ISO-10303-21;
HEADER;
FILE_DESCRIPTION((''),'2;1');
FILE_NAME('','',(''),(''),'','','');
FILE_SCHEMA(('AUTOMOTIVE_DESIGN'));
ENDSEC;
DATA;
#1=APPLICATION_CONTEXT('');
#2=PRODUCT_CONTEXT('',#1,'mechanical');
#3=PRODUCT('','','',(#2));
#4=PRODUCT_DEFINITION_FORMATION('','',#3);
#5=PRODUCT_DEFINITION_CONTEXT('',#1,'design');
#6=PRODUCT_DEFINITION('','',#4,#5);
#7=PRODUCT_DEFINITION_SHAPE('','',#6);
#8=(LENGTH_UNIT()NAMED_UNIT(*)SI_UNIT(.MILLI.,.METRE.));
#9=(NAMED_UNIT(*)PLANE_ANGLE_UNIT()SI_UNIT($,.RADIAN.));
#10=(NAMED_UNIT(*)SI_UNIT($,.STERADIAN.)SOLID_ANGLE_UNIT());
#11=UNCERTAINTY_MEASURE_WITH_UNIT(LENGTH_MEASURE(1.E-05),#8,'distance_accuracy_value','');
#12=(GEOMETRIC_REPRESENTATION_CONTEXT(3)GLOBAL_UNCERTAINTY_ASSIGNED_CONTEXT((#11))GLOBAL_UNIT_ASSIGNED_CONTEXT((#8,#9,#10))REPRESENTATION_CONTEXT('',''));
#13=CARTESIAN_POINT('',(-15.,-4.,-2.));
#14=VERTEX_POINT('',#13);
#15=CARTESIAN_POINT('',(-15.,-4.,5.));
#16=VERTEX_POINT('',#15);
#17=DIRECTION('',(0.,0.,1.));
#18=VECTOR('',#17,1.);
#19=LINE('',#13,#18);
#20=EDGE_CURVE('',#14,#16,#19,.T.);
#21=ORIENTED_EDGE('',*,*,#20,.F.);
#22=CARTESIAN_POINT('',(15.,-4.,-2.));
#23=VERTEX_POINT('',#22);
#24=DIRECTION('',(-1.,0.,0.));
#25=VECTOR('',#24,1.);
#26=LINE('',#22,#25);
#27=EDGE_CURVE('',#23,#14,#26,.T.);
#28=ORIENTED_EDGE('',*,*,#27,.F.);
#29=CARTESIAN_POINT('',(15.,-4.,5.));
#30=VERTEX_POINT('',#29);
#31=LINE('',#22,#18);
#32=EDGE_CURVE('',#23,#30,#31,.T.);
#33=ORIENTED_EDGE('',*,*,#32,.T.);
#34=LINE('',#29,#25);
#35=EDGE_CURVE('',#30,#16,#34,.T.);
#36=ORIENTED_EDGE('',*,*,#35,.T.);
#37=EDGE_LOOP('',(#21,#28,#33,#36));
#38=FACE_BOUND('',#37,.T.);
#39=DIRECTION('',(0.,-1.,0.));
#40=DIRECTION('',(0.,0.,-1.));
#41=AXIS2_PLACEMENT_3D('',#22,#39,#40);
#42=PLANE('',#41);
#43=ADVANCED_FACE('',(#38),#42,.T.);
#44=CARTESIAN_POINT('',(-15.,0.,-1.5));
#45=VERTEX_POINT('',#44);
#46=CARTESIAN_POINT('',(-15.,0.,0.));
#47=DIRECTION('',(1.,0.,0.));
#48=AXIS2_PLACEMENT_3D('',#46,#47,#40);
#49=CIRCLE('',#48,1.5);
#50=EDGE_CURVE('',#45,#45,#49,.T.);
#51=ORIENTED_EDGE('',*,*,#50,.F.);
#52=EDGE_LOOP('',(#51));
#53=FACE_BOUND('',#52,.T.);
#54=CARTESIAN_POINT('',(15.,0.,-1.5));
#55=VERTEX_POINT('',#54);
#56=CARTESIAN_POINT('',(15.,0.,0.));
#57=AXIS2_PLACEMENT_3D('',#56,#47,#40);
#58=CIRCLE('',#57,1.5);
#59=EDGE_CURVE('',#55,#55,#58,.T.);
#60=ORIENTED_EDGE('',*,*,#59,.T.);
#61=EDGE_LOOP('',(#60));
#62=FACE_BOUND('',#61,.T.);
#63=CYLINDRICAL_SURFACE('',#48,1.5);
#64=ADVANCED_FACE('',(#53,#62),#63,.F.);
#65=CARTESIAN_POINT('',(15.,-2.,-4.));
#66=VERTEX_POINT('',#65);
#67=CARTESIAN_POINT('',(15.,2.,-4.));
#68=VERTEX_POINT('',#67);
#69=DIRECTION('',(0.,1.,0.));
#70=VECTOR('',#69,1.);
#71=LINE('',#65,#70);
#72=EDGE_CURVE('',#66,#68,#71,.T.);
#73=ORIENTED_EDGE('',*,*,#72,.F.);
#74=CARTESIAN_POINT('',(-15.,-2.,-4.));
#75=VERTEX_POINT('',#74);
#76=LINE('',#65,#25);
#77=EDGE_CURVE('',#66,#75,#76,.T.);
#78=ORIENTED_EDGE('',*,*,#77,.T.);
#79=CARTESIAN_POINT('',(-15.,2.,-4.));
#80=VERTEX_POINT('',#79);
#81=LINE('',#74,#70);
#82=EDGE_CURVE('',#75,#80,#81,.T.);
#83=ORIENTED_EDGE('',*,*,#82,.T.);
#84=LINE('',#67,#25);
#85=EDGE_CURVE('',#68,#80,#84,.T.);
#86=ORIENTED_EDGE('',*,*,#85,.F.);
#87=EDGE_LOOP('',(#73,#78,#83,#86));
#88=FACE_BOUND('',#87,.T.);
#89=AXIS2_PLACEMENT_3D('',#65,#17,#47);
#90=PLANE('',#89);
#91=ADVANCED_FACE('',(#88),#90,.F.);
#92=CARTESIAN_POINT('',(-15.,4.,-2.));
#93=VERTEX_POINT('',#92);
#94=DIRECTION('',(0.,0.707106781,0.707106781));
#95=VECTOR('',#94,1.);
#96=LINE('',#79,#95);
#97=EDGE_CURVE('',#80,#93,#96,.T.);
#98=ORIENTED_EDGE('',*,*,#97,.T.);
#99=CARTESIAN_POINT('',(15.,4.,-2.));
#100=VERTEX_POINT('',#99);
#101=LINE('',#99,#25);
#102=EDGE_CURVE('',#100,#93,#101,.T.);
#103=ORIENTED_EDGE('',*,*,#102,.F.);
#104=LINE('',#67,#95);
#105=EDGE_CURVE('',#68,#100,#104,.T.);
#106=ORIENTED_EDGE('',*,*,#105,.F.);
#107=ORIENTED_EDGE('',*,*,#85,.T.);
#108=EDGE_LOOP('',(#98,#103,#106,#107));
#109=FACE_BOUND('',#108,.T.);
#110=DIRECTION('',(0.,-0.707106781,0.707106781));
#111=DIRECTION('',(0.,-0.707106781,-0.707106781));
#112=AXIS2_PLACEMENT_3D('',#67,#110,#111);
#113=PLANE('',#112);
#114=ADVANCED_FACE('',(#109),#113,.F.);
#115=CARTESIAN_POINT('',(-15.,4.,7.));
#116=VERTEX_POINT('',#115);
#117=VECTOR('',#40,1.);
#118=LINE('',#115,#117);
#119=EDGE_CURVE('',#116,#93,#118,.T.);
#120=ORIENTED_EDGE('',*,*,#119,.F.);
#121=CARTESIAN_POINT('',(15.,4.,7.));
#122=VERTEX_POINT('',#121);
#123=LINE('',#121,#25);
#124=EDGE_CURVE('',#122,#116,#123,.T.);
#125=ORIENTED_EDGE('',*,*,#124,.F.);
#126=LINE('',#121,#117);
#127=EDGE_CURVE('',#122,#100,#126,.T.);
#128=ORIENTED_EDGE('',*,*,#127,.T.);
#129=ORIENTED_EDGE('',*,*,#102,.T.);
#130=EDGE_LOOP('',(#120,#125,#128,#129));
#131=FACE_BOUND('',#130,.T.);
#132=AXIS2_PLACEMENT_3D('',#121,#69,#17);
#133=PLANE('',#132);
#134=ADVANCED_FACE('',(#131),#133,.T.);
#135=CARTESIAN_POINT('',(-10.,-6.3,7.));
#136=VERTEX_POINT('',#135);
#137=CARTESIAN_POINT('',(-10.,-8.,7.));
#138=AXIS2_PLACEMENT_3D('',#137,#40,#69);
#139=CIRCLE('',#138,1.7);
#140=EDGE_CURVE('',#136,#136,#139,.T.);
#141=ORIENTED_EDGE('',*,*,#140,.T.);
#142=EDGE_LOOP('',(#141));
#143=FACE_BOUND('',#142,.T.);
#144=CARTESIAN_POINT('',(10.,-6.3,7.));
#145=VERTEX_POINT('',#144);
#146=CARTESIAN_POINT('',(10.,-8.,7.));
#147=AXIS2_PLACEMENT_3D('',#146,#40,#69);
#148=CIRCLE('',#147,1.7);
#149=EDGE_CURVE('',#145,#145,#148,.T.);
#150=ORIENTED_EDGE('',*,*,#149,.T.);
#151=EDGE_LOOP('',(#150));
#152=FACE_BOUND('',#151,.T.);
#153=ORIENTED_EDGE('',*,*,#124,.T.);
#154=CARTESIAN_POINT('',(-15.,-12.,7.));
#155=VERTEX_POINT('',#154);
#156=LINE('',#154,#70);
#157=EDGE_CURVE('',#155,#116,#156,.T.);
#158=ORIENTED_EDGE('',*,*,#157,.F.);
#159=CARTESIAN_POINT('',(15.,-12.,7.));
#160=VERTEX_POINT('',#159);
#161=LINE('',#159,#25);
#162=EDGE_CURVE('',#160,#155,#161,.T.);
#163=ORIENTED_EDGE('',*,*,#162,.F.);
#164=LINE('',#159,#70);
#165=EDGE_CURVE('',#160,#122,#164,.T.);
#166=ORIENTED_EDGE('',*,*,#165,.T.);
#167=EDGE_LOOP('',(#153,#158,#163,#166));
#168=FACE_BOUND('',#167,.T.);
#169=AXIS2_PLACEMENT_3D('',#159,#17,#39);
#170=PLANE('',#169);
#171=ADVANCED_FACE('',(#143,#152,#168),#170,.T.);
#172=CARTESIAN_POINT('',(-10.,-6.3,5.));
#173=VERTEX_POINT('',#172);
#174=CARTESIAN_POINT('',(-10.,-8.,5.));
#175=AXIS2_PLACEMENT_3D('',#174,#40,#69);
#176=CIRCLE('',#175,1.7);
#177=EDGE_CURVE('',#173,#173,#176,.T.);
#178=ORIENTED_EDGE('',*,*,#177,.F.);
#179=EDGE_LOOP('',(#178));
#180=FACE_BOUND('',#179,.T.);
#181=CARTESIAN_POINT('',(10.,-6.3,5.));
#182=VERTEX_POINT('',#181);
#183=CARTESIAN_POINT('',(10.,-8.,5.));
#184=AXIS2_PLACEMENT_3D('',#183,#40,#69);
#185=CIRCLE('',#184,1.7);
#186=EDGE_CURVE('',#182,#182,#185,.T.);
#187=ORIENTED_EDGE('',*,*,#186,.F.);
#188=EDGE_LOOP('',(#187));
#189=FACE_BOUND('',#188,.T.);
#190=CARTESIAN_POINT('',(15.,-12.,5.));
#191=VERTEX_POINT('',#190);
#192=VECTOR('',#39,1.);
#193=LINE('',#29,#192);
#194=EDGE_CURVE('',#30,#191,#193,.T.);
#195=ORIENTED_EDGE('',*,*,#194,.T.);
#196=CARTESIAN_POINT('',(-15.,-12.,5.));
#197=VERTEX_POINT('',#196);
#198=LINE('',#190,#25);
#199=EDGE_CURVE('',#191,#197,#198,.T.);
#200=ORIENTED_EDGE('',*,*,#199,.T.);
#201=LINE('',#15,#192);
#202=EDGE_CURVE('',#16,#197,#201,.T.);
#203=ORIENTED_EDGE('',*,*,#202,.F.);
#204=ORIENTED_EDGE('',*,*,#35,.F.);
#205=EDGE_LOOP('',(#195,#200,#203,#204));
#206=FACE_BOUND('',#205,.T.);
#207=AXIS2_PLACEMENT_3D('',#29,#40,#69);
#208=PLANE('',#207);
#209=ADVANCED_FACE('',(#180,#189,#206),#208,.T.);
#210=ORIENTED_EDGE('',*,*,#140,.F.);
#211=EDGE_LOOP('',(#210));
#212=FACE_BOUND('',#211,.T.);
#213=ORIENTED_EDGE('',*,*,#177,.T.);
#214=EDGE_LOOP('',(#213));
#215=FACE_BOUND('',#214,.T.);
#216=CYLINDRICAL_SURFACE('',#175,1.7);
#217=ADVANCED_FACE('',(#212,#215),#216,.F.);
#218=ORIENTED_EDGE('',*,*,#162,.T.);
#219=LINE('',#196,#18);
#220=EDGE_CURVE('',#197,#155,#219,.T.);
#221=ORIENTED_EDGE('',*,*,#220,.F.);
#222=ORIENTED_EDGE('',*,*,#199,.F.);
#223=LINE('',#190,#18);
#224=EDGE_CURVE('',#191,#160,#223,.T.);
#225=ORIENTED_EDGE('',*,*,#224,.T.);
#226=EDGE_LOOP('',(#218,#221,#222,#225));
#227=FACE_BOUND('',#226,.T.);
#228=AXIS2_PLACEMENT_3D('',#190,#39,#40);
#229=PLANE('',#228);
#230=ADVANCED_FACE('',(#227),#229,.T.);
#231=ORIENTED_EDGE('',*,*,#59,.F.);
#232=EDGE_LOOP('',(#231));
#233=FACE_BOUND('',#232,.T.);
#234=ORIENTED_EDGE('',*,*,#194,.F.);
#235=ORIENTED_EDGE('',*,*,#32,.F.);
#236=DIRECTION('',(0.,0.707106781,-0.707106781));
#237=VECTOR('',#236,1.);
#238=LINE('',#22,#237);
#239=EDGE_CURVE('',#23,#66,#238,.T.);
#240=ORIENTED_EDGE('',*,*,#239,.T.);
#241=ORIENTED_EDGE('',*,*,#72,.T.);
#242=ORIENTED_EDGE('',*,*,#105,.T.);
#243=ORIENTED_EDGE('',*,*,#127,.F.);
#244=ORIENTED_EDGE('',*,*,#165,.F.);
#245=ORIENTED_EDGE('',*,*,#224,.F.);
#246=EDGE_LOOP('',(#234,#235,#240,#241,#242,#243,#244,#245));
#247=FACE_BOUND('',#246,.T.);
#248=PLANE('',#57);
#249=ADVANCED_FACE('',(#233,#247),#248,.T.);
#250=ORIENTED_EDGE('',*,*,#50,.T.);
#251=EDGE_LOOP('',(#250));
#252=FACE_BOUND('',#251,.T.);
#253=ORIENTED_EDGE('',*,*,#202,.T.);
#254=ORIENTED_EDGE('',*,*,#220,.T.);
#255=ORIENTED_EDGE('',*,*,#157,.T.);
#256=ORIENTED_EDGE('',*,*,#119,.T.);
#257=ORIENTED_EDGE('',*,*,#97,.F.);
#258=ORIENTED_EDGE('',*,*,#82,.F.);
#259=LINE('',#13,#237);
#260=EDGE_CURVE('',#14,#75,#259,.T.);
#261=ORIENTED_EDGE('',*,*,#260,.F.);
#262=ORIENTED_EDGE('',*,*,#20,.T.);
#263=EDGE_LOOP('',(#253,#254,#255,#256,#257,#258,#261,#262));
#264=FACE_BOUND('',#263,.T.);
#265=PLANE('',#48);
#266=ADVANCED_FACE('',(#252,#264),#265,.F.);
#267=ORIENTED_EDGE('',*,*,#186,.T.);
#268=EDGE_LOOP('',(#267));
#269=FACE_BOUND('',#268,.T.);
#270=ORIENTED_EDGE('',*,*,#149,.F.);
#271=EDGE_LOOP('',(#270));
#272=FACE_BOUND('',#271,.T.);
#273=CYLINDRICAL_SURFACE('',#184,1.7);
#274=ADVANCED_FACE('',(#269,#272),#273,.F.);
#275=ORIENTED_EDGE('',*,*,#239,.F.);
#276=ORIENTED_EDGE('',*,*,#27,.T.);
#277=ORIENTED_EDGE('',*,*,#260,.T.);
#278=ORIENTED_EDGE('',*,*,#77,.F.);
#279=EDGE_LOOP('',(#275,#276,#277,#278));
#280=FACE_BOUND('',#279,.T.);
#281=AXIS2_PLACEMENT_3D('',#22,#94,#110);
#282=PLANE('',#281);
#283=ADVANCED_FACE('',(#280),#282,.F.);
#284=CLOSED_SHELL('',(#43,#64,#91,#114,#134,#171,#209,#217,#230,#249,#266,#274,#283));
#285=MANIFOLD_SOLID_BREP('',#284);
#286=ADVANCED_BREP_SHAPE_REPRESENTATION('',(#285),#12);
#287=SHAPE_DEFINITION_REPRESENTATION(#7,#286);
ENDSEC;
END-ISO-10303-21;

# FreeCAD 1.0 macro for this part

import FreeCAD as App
import Part
import Sketcher
from FreeCAD import Vector

doc = App.newDocument("Part")
params = doc.addObject("Spreadsheet::Sheet", "Params")
for row, (alias, value) in enumerate([
    ("sketch1_width", "16 mm"),
    ("sketch1_width2", "8 mm"),
    ("sketch1_width3", "4 mm"),
    ("sketch1_height", "9 mm"),
    ("sketch1_height2", "2 mm"),
    ("pad1_length", "30 mm"),
    ("sketch2_diameter", "3.4 mm"),
    ("hole_diameter", "3.4 mm"),
    ("sketch3_diameter", "3 mm"),
], start=1):
    params.set(f"A{row}", alias)
    params.set(f"B{row}", "=" + value)
    params.setAlias(f"B{row}", alias)

body = doc.addObject("PartDesign::Body", "Body")

# Sketch on YZ plane
sketch1 = body.newObject("Sketcher::SketchObject", "Sketch")
sketch1.AttachmentSupport = (doc.getObject("YZ_Plane"), [""])
sketch1.MapMode = "FlatFace"
sketch1.addGeometry(Part.LineSegment(Vector(4, -2, 0), Vector(4, 7, 0)), False)
sketch1.addGeometry(Part.LineSegment(Vector(4, 7, 0), Vector(-12, 7, 0)), False)
sketch1.addGeometry(Part.LineSegment(Vector(-12, 7, 0), Vector(-12, 5, 0)), False)
sketch1.addGeometry(Part.LineSegment(Vector(-12, 5, 0), Vector(-4, 5, 0)), False)
sketch1.addGeometry(Part.LineSegment(Vector(-4, 5, 0), Vector(-4, -2, 0)), False)
sketch1.addGeometry(Part.LineSegment(Vector(-4, -2, 0), Vector(-2, -4, 0)), False)
sketch1.addGeometry(Part.LineSegment(Vector(-2, -4, 0), Vector(2, -4, 0)), False)
sketch1.addGeometry(Part.LineSegment(Vector(2, -4, 0), Vector(4, -2, 0)), False)
sketch1.addConstraint(Sketcher.Constraint("Coincident", 0, 2, 1, 1))
sketch1.addConstraint(Sketcher.Constraint("Coincident", 1, 2, 2, 1))
sketch1.addConstraint(Sketcher.Constraint("Coincident", 2, 2, 3, 1))
sketch1.addConstraint(Sketcher.Constraint("Coincident", 3, 2, 4, 1))
sketch1.addConstraint(Sketcher.Constraint("Coincident", 4, 2, 5, 1))
sketch1.addConstraint(Sketcher.Constraint("Coincident", 5, 2, 6, 1))
sketch1.addConstraint(Sketcher.Constraint("Coincident", 6, 2, 7, 1))
sketch1.addConstraint(Sketcher.Constraint("Coincident", 7, 2, 0, 1))
sketch1.addConstraint(Sketcher.Constraint("Vertical", 0))
sketch1.addConstraint(Sketcher.Constraint("Horizontal", 1))
sketch1.addConstraint(Sketcher.Constraint("Vertical", 2))
sketch1.addConstraint(Sketcher.Constraint("Horizontal", 3))
sketch1.addConstraint(Sketcher.Constraint("Vertical", 4))
sketch1.addConstraint(Sketcher.Constraint("Horizontal", 6))
sketch1.addConstraint(Sketcher.Constraint("Symmetric", 4, 2, 7, 2, -2))
sketch1.addConstraint(Sketcher.Constraint("Perpendicular", 5, 7))
sketch1.addConstraint(Sketcher.Constraint("Equal", 5, 7))
sketch1.addConstraint(Sketcher.Constraint("DistanceX", 1, 2, 1, 1, 16.0))
sketch1.addConstraint(Sketcher.Constraint("DistanceX", 3, 1, 3, 2, 8.0))
sketch1.addConstraint(Sketcher.Constraint("DistanceX", 6, 1, 6, 2, 4.0))
sketch1.addConstraint(Sketcher.Constraint("DistanceY", 0, 1, 0, 2, 9.0))
sketch1.addConstraint(Sketcher.Constraint("DistanceY", 2, 2, 2, 1, 2.0))
sketch1.addConstraint(Sketcher.Constraint("DistanceY", -1, 1, 0, 2, 7.0))
sketch1.setExpression("Constraints[17]", "Params.sketch1_width")
sketch1.setExpression("Constraints[18]", "Params.sketch1_width2")
sketch1.setExpression("Constraints[19]", "Params.sketch1_width3")
sketch1.setExpression("Constraints[20]", "Params.sketch1_height")
sketch1.setExpression("Constraints[21]", "Params.sketch1_height2")
pad1 = body.newObject("PartDesign::Pad", "Pad")
pad1.Profile = sketch1
pad1.setExpression("Length", "Params.pad1_length")
pad1.Midplane = True

# Sketch on XY plane
sketch2 = body.newObject("Sketcher::SketchObject", "Sketch001")
sketch2.AttachmentSupport = (doc.getObject("XY_Plane"), [""])
sketch2.MapMode = "FlatFace"
sketch2.AttachmentOffset = App.Placement(Vector(0, 0, 5), App.Rotation())
sketch2.addGeometry(Part.Circle(Vector(10, -8, 0), Vector(0, 0, 1), 1.7), False)
sketch2.addGeometry(Part.Circle(Vector(-10, -8, 0), Vector(0, 0, 1), 1.7), False)
sketch2.addConstraint(Sketcher.Constraint("Equal", 0, 1))
sketch2.addConstraint(Sketcher.Constraint("Symmetric", 0, 3, 1, 3, -2))
sketch2.addConstraint(Sketcher.Constraint("Diameter", 0, 3.4))
sketch2.addConstraint(Sketcher.Constraint("DistanceX", -1, 1, 0, 3, 10.0))
sketch2.addConstraint(Sketcher.Constraint("DistanceY", 0, 3, -1, 1, 8.0))
sketch2.setExpression("Constraints[2]", "Params.sketch2_diameter")
doc.recompute()
hole = body.newObject("PartDesign::Hole", "Hole")
hole.Profile = sketch2
hole.ThreadType = "None"
hole.setExpression("Diameter", "Params.hole_diameter")
hole.DepthType = "ThroughAll"
hole.Reversed = True

# Sketch on YZ plane
sketch3 = body.newObject("Sketcher::SketchObject", "Sketch002")
sketch3.AttachmentSupport = (doc.getObject("YZ_Plane"), [""])
sketch3.MapMode = "FlatFace"
sketch3.AttachmentOffset = App.Placement(Vector(0, 0, 15), App.Rotation())
sketch3.addGeometry(Part.Circle(Vector(0, 0, 0), Vector(0, 0, 1), 1.5), False)
sketch3.addConstraint(Sketcher.Constraint("Coincident", 0, 3, -1, 1))
sketch3.addConstraint(Sketcher.Constraint("Diameter", 0, 3.0))
sketch3.setExpression("Constraints[1]", "Params.sketch3_diameter")
pocket1 = body.newObject("PartDesign::Pocket", "Pocket")
pocket1.Profile = sketch3
pocket1.Type = "ThroughAll"
pocket1.Midplane = True

doc.recompute()
